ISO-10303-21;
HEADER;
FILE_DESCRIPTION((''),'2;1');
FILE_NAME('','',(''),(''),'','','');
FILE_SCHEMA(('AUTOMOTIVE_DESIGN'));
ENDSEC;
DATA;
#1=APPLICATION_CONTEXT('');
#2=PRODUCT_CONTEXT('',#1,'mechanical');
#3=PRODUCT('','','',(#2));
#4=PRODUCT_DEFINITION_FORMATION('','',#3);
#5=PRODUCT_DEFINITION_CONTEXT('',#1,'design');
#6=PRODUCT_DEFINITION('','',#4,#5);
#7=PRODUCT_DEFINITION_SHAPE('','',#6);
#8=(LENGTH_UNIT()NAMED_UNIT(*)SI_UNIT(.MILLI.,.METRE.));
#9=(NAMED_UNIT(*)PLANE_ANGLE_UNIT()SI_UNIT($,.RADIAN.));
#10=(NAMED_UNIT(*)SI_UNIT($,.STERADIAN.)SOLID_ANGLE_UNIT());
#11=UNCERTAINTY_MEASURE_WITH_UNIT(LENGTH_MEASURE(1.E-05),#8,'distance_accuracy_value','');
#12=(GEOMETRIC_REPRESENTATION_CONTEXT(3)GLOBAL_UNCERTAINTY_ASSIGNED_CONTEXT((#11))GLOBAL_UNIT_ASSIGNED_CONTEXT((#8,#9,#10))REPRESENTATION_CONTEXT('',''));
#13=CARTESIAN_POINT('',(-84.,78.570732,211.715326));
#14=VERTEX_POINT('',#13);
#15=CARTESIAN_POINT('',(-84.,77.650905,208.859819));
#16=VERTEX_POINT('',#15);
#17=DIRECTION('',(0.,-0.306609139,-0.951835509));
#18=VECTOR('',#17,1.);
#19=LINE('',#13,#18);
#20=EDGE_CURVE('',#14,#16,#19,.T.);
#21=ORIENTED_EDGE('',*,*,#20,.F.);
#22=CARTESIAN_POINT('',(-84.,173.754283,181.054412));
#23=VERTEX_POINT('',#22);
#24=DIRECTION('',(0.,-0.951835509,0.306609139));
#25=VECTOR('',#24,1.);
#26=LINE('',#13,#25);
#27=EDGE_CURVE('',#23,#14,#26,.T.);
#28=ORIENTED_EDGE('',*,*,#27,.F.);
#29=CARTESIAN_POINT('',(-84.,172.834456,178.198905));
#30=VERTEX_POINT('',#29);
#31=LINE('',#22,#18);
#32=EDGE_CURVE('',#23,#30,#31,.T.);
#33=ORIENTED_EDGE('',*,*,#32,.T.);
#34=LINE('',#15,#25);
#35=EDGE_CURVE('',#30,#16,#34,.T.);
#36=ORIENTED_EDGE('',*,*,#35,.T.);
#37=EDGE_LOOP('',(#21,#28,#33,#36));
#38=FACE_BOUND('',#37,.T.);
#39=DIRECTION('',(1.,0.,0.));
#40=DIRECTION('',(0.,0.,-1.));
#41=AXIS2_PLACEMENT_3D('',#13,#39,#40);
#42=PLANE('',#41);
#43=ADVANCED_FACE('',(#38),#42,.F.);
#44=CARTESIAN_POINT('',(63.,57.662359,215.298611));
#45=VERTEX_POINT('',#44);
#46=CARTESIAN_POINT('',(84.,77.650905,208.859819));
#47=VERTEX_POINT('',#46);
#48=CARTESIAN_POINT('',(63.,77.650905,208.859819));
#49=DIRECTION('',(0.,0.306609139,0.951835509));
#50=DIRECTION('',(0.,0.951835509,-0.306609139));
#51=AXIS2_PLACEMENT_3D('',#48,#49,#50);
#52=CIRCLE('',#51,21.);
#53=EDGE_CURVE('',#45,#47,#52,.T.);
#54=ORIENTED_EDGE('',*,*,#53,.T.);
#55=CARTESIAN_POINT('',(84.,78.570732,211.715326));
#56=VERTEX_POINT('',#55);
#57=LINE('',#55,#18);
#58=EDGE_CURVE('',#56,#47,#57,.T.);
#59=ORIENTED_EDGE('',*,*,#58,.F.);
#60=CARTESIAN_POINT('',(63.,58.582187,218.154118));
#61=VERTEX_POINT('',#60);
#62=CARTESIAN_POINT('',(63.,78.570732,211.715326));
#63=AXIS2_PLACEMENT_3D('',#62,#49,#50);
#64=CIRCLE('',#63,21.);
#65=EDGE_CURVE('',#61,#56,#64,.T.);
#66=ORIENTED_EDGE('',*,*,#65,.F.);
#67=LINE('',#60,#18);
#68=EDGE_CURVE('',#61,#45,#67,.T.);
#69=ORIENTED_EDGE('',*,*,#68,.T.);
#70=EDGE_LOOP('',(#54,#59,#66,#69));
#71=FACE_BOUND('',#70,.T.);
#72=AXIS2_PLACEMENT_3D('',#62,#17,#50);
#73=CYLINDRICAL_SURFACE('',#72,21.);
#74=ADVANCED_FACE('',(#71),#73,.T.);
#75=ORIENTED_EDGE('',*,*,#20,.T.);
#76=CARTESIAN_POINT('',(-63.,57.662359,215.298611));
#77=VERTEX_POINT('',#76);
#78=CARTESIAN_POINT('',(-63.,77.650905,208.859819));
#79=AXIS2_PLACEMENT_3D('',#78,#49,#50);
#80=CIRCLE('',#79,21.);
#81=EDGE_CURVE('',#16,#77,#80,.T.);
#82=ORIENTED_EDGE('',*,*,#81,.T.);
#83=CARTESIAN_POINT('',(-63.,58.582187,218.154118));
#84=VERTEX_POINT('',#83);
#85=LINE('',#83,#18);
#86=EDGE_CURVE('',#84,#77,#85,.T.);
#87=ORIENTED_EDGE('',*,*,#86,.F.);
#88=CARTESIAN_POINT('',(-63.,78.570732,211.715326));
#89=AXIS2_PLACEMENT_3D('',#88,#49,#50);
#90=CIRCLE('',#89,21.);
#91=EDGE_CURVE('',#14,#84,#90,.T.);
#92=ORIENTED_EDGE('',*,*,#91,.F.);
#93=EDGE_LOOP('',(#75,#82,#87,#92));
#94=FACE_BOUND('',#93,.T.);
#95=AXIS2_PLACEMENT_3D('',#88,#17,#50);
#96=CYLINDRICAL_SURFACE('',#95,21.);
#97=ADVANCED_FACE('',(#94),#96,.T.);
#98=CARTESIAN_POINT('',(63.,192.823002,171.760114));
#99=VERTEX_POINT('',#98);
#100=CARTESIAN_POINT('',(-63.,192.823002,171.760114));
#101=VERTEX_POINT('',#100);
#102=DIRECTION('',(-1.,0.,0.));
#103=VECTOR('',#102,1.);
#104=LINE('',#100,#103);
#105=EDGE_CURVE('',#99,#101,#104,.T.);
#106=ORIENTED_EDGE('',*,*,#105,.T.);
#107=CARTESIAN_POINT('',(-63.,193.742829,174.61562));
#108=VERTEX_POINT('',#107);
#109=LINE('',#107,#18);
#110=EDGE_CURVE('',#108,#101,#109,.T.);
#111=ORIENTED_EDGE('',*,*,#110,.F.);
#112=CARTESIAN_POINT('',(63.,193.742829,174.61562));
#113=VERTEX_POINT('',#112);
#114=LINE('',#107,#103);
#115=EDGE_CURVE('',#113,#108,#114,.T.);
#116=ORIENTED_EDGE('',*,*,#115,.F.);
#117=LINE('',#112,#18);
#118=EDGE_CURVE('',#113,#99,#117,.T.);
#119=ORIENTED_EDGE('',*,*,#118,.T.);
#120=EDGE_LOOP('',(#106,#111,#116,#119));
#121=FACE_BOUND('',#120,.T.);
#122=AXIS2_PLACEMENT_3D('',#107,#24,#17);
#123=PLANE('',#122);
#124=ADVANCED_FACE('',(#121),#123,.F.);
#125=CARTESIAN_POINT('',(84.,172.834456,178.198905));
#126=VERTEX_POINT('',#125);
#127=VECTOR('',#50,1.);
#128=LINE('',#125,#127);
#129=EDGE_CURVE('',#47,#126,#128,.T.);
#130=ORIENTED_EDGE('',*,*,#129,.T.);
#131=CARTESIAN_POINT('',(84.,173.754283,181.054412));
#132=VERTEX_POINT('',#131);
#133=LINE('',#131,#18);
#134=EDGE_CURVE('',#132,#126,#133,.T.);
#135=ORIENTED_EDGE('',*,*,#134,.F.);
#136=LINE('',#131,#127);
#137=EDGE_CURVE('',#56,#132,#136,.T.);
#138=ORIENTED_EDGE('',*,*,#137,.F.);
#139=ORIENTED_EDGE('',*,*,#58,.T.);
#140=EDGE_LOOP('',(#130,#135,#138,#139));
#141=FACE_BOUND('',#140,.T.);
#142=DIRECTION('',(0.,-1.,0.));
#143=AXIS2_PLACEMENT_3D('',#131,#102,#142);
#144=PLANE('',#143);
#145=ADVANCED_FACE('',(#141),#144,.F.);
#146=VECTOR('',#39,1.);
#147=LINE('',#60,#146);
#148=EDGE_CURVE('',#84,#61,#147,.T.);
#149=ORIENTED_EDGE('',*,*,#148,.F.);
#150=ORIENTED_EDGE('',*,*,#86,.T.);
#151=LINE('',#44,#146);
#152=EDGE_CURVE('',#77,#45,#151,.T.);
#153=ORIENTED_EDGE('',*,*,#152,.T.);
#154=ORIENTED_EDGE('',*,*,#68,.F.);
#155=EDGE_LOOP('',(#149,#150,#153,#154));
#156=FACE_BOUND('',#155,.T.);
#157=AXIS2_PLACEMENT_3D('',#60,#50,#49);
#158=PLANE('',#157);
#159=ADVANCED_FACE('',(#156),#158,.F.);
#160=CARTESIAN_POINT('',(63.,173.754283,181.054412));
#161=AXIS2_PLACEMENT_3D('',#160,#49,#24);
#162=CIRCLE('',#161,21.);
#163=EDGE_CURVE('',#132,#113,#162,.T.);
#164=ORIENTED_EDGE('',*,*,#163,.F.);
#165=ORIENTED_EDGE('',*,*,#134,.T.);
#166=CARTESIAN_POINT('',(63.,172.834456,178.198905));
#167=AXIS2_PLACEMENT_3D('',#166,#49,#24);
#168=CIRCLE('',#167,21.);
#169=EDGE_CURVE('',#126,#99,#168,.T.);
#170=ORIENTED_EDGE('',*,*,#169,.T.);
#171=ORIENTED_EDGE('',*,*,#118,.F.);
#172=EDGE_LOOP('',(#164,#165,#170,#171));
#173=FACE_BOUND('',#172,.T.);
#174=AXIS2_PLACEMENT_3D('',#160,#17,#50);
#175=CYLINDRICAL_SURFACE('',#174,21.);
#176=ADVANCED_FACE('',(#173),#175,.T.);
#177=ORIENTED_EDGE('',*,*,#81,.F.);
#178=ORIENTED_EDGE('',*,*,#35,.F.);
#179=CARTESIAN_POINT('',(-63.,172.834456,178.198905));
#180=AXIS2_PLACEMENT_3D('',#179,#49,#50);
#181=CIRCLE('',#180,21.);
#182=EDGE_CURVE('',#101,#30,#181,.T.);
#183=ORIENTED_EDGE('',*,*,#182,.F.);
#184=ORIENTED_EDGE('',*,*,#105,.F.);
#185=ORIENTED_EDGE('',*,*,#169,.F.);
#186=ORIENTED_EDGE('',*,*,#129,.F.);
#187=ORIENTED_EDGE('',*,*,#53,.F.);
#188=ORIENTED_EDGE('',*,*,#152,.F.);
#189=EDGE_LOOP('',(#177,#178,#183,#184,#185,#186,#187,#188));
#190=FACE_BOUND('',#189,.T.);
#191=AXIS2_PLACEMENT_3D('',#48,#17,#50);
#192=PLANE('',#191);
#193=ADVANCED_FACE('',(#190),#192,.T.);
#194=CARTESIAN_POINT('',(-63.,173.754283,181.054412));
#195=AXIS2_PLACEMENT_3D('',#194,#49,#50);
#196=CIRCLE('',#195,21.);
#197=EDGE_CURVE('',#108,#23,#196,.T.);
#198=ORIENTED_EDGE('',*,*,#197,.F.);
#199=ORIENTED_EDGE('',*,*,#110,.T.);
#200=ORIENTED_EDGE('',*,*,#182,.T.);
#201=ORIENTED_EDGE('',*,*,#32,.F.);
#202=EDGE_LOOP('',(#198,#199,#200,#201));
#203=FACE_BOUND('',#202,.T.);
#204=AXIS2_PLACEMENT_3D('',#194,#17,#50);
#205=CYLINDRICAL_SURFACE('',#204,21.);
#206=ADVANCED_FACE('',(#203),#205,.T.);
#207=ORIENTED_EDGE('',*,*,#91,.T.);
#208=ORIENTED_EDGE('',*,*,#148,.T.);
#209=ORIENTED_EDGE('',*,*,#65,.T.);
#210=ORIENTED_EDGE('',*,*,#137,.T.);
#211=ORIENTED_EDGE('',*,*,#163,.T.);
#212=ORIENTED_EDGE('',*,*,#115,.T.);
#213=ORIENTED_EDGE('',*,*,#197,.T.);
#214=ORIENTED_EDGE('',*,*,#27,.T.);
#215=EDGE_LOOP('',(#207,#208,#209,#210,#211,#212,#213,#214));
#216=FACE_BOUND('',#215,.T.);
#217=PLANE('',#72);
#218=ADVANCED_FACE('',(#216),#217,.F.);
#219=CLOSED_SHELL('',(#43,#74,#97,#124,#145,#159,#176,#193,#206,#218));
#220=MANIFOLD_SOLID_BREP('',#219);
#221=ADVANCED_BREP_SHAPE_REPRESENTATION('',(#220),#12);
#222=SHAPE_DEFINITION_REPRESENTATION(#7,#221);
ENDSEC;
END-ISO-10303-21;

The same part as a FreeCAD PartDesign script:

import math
import FreeCAD as App
import Part
import Sketcher
Q = App.Units.Quantity

doc = App.newDocument("Part")
body = doc.addObject("PartDesign::Body", "Body")

# Sketch on an angled plane
sketch1 = doc.addObject("Sketcher::SketchObject", "Sketch")
body.addObject(sketch1)
sketch1.Placement = App.Placement(App.Vector(0, 68.253853, 211.886836), App.Rotation(App.Vector(1, 0, 0), App.Vector(0, 0.951835509, -0.306609139), App.Vector(0, 0.306609139, 0.951835509), "ZXY"))
sketch1.addGeometry(Part.LineSegment(App.Vector(84, 10, 0), App.Vector(84, 110, 0)), False)
sketch1.addGeometry(Part.ArcOfCircle(Part.Circle(App.Vector(63, 110, 0), App.Vector(0, 0, 1), 21), math.radians(0), math.radians(90)), False)
sketch1.addGeometry(Part.LineSegment(App.Vector(63, 131, 0), App.Vector(-63, 131, 0)), False)
sketch1.addGeometry(Part.ArcOfCircle(Part.Circle(App.Vector(-63, 110, 0), App.Vector(0, 0, 1), 21), math.radians(90), math.radians(180)), False)
sketch1.addGeometry(Part.LineSegment(App.Vector(-84, 110, 0), App.Vector(-84, 10, 0)), False)
sketch1.addGeometry(Part.ArcOfCircle(Part.Circle(App.Vector(-63, 10, 0), App.Vector(0, 0, 1), 21), math.radians(180), math.radians(270)), False)
sketch1.addGeometry(Part.LineSegment(App.Vector(-63, -11, 0), App.Vector(63, -11, 0)), False)
sketch1.addGeometry(Part.ArcOfCircle(Part.Circle(App.Vector(63, 10, 0), App.Vector(0, 0, 1), 21), math.radians(-90), math.radians(0)), False)
sketch1.addConstraint(Sketcher.Constraint("Tangent", 0, 2, 1, 1))
sketch1.addConstraint(Sketcher.Constraint("Tangent", 1, 2, 2, 1))
sketch1.addConstraint(Sketcher.Constraint("Tangent", 2, 2, 3, 1))
sketch1.addConstraint(Sketcher.Constraint("Tangent", 3, 2, 4, 1))
sketch1.addConstraint(Sketcher.Constraint("Tangent", 4, 2, 5, 1))
sketch1.addConstraint(Sketcher.Constraint("Tangent", 5, 2, 6, 1))
sketch1.addConstraint(Sketcher.Constraint("Tangent", 6, 2, 7, 1))
sketch1.addConstraint(Sketcher.Constraint("Tangent", 7, 2, 0, 1))
sketch1.addConstraint(Sketcher.Constraint("Vertical", 0))
sketch1.addConstraint(Sketcher.Constraint("Horizontal", 2))
sketch1.addConstraint(Sketcher.Constraint("Vertical", 4))
sketch1.addConstraint(Sketcher.Constraint("Horizontal", 6))
sketch1.addConstraint(Sketcher.Constraint("Equal", 1, 3))
sketch1.addConstraint(Sketcher.Constraint("Equal", 3, 5))
sketch1.addConstraint(Sketcher.Constraint("Equal", 5, 7))
sketch1.addConstraint(Sketcher.Constraint("Radius", 1, Q("21 mm")))
sketch1.addConstraint(Sketcher.Constraint("DistanceX", 2, 2, 2, 1, Q("126 mm")))
sketch1.addConstraint(Sketcher.Constraint("DistanceY", 0, 1, 0, 2, Q("100 mm")))
sketch1.addConstraint(Sketcher.Constraint("DistanceX", -1, 1, 1, 3, Q("63 mm")))
sketch1.addConstraint(Sketcher.Constraint("DistanceY", -1, 1, 1, 3, Q("109.872559 mm")))
pad1 = doc.addObject("PartDesign::Pad", "Pad")
body.addObject(pad1)
pad1.Profile = sketch1
pad1.Length = 3

doc.recompute()
